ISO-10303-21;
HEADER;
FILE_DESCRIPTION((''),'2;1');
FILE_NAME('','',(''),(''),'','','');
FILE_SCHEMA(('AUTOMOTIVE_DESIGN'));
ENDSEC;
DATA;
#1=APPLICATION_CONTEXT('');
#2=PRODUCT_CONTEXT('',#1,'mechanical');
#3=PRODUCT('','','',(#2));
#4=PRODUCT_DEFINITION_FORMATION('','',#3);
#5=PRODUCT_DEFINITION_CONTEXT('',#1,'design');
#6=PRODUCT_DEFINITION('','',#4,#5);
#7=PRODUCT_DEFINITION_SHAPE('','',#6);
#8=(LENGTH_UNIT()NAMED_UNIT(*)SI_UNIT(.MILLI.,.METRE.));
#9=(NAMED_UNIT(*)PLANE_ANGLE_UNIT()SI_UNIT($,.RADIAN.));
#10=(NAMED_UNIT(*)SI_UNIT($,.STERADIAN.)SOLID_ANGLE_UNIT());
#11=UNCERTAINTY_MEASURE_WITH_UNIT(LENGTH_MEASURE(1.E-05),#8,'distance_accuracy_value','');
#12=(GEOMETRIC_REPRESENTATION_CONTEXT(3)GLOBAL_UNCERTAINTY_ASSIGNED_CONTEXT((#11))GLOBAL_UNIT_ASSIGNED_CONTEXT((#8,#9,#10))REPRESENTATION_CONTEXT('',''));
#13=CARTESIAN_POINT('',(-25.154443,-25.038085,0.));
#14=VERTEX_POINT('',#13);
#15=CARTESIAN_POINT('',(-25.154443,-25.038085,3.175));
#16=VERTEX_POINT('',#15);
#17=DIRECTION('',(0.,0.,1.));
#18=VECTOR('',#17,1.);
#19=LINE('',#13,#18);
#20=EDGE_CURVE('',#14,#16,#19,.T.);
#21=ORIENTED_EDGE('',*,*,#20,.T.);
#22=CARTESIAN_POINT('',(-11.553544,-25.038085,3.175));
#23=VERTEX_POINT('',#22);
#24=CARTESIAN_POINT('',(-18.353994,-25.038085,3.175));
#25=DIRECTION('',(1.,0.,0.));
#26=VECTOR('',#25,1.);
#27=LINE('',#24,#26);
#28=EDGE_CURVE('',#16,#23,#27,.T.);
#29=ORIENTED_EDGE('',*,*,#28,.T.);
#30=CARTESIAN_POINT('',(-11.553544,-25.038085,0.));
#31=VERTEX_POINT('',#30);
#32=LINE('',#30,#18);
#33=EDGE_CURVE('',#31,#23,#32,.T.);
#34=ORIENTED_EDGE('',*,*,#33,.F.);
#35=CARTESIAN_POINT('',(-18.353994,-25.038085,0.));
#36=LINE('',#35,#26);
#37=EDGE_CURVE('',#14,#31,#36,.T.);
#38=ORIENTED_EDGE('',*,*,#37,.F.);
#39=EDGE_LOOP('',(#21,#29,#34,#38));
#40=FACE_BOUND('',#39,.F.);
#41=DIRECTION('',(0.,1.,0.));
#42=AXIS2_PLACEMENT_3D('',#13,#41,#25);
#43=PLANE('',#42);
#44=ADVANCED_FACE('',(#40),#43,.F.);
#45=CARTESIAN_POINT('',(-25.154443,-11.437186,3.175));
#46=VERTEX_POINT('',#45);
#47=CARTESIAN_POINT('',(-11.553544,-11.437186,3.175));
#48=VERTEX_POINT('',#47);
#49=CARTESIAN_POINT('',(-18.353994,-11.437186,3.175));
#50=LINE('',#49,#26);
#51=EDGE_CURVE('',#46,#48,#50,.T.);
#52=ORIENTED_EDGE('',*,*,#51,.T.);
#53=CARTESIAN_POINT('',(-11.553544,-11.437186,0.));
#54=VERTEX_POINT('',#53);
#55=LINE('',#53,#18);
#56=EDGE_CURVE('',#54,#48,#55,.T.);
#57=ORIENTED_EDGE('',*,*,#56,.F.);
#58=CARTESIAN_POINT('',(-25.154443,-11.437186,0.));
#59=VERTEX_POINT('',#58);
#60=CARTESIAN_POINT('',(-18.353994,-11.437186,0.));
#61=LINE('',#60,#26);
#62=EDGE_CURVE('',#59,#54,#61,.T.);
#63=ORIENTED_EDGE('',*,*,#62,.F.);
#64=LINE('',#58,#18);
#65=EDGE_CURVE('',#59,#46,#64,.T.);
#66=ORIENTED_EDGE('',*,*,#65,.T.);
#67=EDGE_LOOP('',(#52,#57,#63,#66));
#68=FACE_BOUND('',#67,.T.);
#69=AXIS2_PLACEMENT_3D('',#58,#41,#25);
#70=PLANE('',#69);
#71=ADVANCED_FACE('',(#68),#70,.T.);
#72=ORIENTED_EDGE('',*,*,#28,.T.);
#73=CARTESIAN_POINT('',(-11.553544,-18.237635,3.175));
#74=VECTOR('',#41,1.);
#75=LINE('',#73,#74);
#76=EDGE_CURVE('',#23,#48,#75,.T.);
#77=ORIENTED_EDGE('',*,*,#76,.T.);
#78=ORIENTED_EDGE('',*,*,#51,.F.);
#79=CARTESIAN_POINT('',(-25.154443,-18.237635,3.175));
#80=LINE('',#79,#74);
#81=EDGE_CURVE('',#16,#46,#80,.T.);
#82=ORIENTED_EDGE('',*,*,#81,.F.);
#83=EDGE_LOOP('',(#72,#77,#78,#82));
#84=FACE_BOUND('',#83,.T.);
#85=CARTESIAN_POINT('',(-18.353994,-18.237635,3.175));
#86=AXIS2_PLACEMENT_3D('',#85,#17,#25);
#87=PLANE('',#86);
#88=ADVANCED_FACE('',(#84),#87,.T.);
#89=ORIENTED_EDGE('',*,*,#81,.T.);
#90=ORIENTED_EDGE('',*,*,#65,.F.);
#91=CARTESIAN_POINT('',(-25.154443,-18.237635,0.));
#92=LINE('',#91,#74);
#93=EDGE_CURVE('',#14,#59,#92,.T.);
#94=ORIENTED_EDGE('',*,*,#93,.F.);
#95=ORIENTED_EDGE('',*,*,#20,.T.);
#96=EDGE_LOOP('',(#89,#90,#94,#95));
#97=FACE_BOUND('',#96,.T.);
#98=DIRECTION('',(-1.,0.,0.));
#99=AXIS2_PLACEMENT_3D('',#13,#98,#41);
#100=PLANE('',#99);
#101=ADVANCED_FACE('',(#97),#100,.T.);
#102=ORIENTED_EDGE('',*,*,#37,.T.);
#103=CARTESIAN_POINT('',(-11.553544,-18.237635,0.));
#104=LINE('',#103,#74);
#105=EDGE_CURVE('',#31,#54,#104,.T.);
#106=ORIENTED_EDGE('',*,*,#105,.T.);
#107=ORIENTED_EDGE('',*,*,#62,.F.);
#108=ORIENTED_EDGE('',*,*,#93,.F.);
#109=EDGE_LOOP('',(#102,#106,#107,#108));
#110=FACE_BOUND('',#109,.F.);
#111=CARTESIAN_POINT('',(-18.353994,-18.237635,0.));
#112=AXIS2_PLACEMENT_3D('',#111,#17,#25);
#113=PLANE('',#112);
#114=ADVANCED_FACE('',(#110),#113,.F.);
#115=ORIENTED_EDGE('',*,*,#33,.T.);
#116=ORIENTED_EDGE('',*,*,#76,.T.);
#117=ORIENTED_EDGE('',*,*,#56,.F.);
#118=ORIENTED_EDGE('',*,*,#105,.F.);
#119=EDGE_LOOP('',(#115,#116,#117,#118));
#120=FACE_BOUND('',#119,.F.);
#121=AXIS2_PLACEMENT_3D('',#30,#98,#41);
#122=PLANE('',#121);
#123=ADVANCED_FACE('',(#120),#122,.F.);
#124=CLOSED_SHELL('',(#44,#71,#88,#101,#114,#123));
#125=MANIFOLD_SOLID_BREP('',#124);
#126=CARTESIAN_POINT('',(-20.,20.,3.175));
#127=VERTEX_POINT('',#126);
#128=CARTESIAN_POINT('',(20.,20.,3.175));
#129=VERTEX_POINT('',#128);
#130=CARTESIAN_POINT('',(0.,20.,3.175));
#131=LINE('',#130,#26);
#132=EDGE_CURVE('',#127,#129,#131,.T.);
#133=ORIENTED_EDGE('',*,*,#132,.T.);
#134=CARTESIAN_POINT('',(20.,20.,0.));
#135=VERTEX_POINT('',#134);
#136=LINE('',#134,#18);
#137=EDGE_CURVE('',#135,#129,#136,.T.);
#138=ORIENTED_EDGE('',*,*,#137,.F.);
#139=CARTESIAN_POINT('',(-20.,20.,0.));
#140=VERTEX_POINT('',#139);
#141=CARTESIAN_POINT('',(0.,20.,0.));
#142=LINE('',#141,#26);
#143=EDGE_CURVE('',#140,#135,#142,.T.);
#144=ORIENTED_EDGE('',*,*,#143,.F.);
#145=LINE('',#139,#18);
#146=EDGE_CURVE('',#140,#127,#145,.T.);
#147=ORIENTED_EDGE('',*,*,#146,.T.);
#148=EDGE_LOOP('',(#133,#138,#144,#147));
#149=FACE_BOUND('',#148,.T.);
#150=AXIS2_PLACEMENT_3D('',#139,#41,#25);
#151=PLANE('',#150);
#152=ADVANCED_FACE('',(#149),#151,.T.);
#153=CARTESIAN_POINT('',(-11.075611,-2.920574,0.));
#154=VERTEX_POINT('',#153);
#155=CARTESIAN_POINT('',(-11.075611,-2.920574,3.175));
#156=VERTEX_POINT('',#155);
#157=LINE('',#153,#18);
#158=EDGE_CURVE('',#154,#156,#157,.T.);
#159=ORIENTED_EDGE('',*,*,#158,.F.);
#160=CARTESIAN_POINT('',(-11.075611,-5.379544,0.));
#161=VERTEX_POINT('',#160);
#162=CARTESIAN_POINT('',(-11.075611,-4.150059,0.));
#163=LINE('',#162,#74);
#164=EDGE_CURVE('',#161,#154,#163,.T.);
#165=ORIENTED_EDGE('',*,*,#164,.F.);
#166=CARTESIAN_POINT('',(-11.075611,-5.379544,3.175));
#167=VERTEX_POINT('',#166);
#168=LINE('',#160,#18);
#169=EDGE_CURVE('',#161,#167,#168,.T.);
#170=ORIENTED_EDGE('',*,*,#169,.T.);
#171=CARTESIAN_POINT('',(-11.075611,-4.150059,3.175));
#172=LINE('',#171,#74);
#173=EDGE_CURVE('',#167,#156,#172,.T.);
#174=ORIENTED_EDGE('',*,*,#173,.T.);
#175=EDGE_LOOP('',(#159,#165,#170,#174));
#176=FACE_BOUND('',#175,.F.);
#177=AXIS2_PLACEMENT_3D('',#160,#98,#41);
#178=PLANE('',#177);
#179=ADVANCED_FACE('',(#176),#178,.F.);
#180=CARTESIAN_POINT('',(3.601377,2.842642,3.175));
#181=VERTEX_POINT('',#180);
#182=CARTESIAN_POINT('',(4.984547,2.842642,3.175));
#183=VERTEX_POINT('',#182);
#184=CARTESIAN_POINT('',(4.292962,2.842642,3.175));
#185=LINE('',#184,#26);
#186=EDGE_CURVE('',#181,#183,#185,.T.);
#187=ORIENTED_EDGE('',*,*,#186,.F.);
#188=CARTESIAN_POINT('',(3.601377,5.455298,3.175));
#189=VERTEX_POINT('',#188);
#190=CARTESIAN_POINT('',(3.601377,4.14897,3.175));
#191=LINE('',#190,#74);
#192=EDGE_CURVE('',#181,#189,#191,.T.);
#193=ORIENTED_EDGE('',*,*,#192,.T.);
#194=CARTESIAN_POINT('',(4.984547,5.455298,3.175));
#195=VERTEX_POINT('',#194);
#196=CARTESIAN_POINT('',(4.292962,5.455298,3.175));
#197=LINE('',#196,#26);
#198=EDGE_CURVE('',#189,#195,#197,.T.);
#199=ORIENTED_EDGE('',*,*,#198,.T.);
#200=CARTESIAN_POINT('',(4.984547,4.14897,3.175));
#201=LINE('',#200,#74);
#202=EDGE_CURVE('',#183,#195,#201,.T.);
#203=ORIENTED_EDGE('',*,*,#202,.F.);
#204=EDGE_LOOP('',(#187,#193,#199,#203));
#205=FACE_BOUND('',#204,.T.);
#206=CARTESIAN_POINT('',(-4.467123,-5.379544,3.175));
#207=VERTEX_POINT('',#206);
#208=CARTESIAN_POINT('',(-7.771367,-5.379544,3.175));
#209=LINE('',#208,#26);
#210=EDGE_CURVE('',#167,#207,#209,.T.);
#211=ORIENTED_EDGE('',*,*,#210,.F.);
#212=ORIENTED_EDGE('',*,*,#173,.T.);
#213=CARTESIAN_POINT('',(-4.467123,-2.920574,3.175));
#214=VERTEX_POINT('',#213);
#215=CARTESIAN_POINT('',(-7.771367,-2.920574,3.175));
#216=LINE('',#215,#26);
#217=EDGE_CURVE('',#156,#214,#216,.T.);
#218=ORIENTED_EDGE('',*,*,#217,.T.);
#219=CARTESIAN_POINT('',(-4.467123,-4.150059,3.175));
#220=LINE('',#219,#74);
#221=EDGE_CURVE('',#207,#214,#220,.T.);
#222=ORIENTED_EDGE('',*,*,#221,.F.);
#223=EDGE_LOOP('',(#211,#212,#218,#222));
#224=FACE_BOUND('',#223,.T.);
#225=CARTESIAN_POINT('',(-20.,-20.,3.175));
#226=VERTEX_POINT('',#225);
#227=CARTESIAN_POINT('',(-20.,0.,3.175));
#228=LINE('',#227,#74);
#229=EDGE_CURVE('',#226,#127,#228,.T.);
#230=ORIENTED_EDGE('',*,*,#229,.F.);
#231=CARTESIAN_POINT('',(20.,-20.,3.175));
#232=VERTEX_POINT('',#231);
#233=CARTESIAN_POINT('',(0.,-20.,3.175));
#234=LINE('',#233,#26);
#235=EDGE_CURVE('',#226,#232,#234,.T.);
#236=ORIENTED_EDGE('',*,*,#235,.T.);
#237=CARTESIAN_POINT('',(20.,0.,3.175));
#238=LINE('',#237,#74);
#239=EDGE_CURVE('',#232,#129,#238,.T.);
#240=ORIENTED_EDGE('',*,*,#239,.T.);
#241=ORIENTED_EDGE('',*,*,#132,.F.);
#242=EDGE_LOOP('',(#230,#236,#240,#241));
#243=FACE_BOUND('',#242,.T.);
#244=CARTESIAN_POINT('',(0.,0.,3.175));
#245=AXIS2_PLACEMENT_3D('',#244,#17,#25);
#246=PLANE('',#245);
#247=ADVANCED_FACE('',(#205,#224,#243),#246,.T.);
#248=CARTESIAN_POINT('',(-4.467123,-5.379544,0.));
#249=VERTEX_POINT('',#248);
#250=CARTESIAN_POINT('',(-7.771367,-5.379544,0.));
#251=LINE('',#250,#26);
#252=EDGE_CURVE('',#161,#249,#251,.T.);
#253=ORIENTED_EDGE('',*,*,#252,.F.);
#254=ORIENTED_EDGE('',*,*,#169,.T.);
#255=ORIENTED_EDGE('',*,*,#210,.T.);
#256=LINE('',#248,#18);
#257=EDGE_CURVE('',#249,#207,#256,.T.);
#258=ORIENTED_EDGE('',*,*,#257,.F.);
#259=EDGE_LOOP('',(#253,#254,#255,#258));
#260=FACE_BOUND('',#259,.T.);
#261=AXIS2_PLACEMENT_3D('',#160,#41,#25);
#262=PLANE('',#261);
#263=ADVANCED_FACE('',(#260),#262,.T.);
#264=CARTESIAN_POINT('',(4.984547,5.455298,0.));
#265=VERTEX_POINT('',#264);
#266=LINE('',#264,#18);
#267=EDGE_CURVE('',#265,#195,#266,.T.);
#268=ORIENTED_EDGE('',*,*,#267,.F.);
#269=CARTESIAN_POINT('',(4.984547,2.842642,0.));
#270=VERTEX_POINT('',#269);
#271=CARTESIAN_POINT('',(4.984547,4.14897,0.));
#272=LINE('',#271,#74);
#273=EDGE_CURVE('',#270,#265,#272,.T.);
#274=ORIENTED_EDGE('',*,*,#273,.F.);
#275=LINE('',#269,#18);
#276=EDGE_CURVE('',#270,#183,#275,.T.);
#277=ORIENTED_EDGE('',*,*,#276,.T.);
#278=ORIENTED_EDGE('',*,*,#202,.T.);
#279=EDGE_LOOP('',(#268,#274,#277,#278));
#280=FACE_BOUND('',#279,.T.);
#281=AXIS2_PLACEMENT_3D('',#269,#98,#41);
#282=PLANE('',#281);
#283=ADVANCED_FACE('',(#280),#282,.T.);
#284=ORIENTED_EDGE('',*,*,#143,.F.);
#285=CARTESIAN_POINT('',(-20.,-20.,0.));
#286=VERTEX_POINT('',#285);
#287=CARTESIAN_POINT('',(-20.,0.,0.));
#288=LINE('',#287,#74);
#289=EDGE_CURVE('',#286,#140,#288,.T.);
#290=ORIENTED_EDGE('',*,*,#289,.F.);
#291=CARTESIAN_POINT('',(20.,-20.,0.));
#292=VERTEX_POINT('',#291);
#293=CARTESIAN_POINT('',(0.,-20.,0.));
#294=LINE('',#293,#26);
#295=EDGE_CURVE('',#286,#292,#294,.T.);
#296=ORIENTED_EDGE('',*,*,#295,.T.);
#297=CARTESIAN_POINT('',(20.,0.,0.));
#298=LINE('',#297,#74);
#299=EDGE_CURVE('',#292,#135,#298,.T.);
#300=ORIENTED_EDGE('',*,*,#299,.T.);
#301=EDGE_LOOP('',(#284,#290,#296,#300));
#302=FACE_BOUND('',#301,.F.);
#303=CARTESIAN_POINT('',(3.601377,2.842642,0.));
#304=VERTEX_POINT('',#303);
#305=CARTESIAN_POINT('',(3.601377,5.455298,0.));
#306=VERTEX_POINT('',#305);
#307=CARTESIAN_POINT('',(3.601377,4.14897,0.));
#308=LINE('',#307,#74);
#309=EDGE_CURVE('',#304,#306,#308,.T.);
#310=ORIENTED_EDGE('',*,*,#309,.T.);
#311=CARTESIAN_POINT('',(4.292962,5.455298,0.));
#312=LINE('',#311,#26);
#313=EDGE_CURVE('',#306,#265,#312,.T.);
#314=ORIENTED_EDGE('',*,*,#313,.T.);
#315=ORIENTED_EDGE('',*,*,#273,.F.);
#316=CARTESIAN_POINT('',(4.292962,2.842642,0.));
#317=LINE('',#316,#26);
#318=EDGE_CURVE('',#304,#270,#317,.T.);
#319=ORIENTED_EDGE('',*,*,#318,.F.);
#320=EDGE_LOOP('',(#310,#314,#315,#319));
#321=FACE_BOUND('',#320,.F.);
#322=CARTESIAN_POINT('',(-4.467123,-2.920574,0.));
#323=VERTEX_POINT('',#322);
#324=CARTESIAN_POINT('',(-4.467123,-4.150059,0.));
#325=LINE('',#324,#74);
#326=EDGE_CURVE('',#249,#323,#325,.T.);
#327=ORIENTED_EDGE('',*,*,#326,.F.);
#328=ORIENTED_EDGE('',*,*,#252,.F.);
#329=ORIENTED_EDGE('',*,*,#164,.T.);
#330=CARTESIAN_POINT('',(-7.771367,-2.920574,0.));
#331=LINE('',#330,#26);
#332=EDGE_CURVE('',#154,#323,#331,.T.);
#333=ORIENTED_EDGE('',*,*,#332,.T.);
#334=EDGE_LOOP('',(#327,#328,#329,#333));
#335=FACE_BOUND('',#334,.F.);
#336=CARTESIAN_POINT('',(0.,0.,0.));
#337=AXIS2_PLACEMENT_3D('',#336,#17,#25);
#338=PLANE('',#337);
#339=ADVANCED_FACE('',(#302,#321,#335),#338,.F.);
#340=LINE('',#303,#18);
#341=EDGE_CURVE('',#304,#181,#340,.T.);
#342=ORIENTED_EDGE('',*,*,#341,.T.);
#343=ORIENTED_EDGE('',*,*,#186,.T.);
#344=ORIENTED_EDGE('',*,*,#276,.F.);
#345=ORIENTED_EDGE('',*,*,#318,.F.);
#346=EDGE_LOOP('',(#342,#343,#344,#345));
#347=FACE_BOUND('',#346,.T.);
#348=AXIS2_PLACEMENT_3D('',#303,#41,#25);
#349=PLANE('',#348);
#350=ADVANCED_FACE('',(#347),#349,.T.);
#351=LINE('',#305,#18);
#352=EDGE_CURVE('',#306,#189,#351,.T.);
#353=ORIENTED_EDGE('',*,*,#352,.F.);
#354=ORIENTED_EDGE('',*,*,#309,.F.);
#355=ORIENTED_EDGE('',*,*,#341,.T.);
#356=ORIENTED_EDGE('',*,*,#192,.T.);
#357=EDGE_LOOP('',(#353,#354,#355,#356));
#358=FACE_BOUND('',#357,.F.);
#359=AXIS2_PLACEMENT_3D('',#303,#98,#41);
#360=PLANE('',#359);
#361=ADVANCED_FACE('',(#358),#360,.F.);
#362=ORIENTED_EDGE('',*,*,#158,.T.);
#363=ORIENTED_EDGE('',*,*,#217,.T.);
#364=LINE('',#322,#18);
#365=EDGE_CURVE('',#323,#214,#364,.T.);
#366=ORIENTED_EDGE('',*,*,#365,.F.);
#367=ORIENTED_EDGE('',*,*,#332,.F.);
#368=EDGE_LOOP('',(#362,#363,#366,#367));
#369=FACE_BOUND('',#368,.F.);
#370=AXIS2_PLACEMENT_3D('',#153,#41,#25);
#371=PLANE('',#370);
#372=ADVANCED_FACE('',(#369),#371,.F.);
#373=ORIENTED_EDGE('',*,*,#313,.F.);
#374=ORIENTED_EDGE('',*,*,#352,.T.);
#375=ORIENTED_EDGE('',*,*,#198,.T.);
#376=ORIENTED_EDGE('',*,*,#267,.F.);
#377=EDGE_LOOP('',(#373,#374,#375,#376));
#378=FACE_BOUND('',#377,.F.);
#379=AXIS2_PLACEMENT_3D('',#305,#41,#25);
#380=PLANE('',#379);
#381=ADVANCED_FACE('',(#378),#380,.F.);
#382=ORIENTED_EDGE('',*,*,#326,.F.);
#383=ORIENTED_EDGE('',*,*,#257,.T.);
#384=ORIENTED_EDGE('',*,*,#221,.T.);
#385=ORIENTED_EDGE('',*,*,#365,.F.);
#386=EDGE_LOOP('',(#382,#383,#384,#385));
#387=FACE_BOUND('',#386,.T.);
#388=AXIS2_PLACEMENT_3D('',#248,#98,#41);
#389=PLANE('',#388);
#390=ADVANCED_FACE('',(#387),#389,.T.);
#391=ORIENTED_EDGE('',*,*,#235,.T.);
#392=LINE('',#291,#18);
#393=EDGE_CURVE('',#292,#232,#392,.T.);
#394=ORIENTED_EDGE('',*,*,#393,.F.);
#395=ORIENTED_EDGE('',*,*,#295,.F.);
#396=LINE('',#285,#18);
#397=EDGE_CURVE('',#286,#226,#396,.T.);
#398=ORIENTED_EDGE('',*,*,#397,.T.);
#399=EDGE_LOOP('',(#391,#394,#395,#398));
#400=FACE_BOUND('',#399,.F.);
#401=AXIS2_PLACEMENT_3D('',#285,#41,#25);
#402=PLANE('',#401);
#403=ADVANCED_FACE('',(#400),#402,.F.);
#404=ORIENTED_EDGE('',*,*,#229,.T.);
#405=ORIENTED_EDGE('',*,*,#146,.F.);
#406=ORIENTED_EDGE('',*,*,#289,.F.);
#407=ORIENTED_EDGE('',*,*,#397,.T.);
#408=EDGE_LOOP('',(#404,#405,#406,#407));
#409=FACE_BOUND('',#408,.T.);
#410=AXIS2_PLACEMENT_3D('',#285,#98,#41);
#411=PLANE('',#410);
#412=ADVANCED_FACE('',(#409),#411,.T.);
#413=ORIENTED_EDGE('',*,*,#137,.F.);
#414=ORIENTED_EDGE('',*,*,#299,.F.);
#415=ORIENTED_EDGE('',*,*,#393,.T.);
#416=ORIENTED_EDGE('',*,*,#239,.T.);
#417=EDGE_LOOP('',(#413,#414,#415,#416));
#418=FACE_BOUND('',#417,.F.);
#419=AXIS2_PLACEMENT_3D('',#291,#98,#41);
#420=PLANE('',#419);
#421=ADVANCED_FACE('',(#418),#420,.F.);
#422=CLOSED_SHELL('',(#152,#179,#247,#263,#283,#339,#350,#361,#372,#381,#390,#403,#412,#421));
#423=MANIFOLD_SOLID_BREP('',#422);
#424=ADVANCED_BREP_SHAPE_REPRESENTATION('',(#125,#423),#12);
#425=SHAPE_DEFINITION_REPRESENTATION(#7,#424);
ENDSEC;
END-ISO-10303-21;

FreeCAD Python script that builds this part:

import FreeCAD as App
import Part
import Sketcher
from FreeCAD import Vector

doc = App.newDocument("Part")
body = doc.addObject("PartDesign::Body", "Body")

sketch1 = body.newObject("Sketcher::SketchObject", "Sketch")
sketch1.AttachmentSupport = (doc.getObject("XY_Plane"), [""])
sketch1.MapMode = "FlatFace"
sketch1.addGeometry([
    Part.LineSegment(Vector(-20, 20, 0), Vector(-20, -20, 0)),
    Part.LineSegment(Vector(-20, -20, 0), Vector(20, -20, 0)),
    Part.LineSegment(Vector(20, -20, 0), Vector(20, 20, 0)),
    Part.LineSegment(Vector(20, 20, 0), Vector(-20, 20, 0)),
    Part.LineSegment(Vector(-4.467123, -5.379544, 0), Vector(-11.075611, -5.379544, 0)),
    Part.LineSegment(Vector(-11.075611, -5.379544, 0), Vector(-11.075611, -2.920574, 0)),
    Part.LineSegment(Vector(-11.075611, -2.920574, 0), Vector(-4.467123, -2.920574, 0)),
    Part.LineSegment(Vector(-4.467123, -2.920574, 0), Vector(-4.467123, -5.379544, 0)),
    Part.LineSegment(Vector(4.984547, 2.842642, 0), Vector(3.601377, 2.842642, 0)),
    Part.LineSegment(Vector(3.601377, 2.842642, 0), Vector(3.601377, 5.455298, 0)),
    Part.LineSegment(Vector(3.601377, 5.455298, 0), Vector(4.984547, 5.455298, 0)),
    Part.LineSegment(Vector(4.984547, 5.455298, 0), Vector(4.984547, 2.842642, 0)),
], False)
sketch1.addConstraint([
    Sketcher.Constraint("Coincident", 0, 2, 1, 1),
    Sketcher.Constraint("Coincident", 1, 2, 2, 1),
    Sketcher.Constraint("Coincident", 2, 2, 3, 1),
    Sketcher.Constraint("Coincident", 3, 2, 0, 1),
    Sketcher.Constraint("Coincident", 4, 2, 5, 1),
    Sketcher.Constraint("Coincident", 5, 2, 6, 1),
    Sketcher.Constraint("Coincident", 6, 2, 7, 1),
    Sketcher.Constraint("Coincident", 7, 2, 4, 1),
    Sketcher.Constraint("Coincident", 8, 2, 9, 1),
    Sketcher.Constraint("Coincident", 9, 2, 10, 1),
    Sketcher.Constraint("Coincident", 10, 2, 11, 1),
    Sketcher.Constraint("Coincident", 11, 2, 8, 1),
    Sketcher.Constraint("Vertical", 0),
    Sketcher.Constraint("Horizontal", 1),
    Sketcher.Constraint("Vertical", 2),
    Sketcher.Constraint("Horizontal", 3),
    Sketcher.Constraint("Horizontal", 4),
    Sketcher.Constraint("Vertical", 5),
    Sketcher.Constraint("Horizontal", 6),
    Sketcher.Constraint("Vertical", 7),
    Sketcher.Constraint("Horizontal", 8),
    Sketcher.Constraint("Vertical", 9),
    Sketcher.Constraint("Horizontal", 10),
    Sketcher.Constraint("Vertical", 11),
    Sketcher.Constraint("Symmetric", 0, 2, 2, 2, -1, 1),
    Sketcher.Constraint("Equal", 3, 0),
    Sketcher.Constraint("DistanceX", 1, 1, 1, 2, 40.0),
    Sketcher.Constraint("DistanceX", 4, 2, 4, 1, 6.608488),
    Sketcher.Constraint("DistanceX", 8, 2, 8, 1, 1.383169),
    Sketcher.Constraint("DistanceY", 5, 1, 5, 2, 2.458971),
    Sketcher.Constraint("DistanceY", -1, 1, 9, 2, 5.455298),
    Sketcher.Constraint("DistanceX", 6, 2, 8, 2, 8.0685),
    Sketcher.Constraint("DistanceY", 9, 1, 9, 2, 2.612657),
    Sketcher.Constraint("DistanceX", 4, 2, -1, 1, 11.075611),
    Sketcher.Constraint("DistanceY", 6, 2, 9, 2, 8.375872),
])
pad1 = body.newObject("PartDesign::Pad", "Pad")
pad1.Profile = sketch1
pad1.Length = 3.175
body2 = doc.addObject("PartDesign::Body", "Body001")

sketch2 = body2.newObject("Sketcher::SketchObject", "Sketch001")
sketch2.AttachmentSupport = (doc.getObject("XY_Plane001"), [""])
sketch2.MapMode = "FlatFace"
sketch2.addGeometry([
    Part.LineSegment(Vector(-25.154443, -11.437186, 0), Vector(-25.154443, -25.038085, 0)),
    Part.LineSegment(Vector(-25.154443, -25.038085, 0), Vector(-11.553544, -25.038085, 0)),
    Part.LineSegment(Vector(-11.553544, -25.038085, 0), Vector(-11.553544, -11.437186, 0)),
    Part.LineSegment(Vector(-11.553544, -11.437186, 0), Vector(-25.154443, -11.437186, 0)),
], False)
sketch2.addConstraint([
    Sketcher.Constraint("Coincident", 0, 2, 1, 1),
    Sketcher.Constraint("Coincident", 1, 2, 2, 1),
    Sketcher.Constraint("Coincident", 2, 2, 3, 1),
    Sketcher.Constraint("Coincident", 3, 2, 0, 1),
    Sketcher.Constraint("Vertical", 0),
    Sketcher.Constraint("Horizontal", 1),
    Sketcher.Constraint("Vertical", 2),
    Sketcher.Constraint("Horizontal", 3),
    Sketcher.Constraint("Equal", 3, 0),
    Sketcher.Constraint("DistanceX", 1, 1, 1, 2, 13.600899),
    Sketcher.Constraint("DistanceX", 0, 2, -1, 1, 25.154443),
    Sketcher.Constraint("DistanceY", 0, 2, -1, 1, 25.038085),
])
pad2 = body2.newObject("PartDesign::Pad", "Pad001")
pad2.Profile = sketch2
pad2.Length = 3.175

doc.recompute()
